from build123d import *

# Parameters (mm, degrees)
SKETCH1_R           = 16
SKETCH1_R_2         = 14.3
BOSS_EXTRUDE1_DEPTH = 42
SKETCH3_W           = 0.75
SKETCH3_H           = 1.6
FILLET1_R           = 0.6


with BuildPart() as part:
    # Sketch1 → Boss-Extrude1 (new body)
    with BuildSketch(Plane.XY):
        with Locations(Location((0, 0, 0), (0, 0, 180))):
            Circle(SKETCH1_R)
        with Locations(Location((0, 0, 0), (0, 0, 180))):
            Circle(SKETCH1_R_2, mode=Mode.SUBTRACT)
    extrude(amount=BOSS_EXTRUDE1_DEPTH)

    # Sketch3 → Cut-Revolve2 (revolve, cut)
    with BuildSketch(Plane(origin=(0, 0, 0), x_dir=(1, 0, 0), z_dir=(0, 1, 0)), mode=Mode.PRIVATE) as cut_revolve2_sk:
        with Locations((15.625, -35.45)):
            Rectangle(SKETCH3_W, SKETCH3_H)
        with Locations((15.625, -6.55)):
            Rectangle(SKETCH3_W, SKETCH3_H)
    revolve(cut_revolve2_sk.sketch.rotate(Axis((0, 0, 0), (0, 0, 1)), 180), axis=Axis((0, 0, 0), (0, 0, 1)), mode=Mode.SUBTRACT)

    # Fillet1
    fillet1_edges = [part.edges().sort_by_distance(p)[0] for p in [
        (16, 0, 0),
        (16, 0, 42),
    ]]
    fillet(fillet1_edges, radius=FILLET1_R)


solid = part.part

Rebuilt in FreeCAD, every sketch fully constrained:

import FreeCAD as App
import Part
import Sketcher


def edges_at(feature, points):
    """Names of the edges that pass closest to the given points."""
    edges = feature.Shape.Edges
    near = lambda p: min(range(len(edges)), key=lambda i: edges[i].distToShape(Part.Vertex(*p))[0])
    return sorted({f"Edge{near(p) + 1}" for p in points})

doc = App.newDocument("Part")
body = doc.addObject("PartDesign::Body", "Body")

sketch1 = body.newObject("Sketcher::SketchObject", "Sketch")
sketch1.AttachmentSupport = (doc.getObject("XY_Plane"), [""])
sketch1.MapMode = "FlatFace"
sketch1.addGeometry([
    Part.Circle(App.Vector(0, 0, 0), App.Vector(0, 0, 1), 16),
    Part.Circle(App.Vector(0, 0, 0), App.Vector(0, 0, 1), 14),
], False)
sketch1.addConstraint([
    Sketcher.Constraint("Coincident", 0, 3, -1, 1),
    Sketcher.Constraint("Coincident", 1, 3, -1, 1),
    Sketcher.Constraint("Diameter", 0, 32.0),
    Sketcher.Constraint("Diameter", 1, 28.6),
])
pad1 = body.newObject("PartDesign::Pad", "Pad")
pad1.Profile = sketch1
pad1.Length = 42

sketch2 = body.newObject("Sketcher::SketchObject", "Sketch001")
sketch2.AttachmentSupport = (doc.getObject("XZ_Plane"), [""])
sketch2.MapMode = "FlatFace"
sketch2.addGeometry([
    Part.LineSegment(App.Vector(15.2, 34.6, 0), App.Vector(15.2, 36.2, 0)),
    Part.LineSegment(App.Vector(15.2, 36.2, 0), App.Vector(16, 36.2, 0)),
    Part.LineSegment(App.Vector(16, 36.2, 0), App.Vector(16, 34.6, 0)),
    Part.LineSegment(App.Vector(16, 34.6, 0), App.Vector(15.2, 34.6, 0)),
    Part.LineSegment(App.Vector(15.2, 5.8, 0), App.Vector(15.2, 7.3, 0)),
    Part.LineSegment(App.Vector(15.2, 7.3, 0), App.Vector(16, 7.3, 0)),
    Part.LineSegment(App.Vector(16, 7.3, 0), App.Vector(16, 5.8, 0)),
    Part.LineSegment(App.Vector(16, 5.8, 0), App.Vector(15.2, 5.8, 0)),
], False)
sketch2.addConstraint([
    Sketcher.Constraint("Coincident", 0, 2, 1, 1),
    Sketcher.Constraint("Coincident", 1, 2, 2, 1),
    Sketcher.Constraint("Coincident", 2, 2, 3, 1),
    Sketcher.Constraint("Coincident", 3, 2, 0, 1),
    Sketcher.Constraint("Coincident", 4, 2, 5, 1),
    Sketcher.Constraint("Coincident", 5, 2, 6, 1),
    Sketcher.Constraint("Coincident", 6, 2, 7, 1),
    Sketcher.Constraint("Coincident", 7, 2, 4, 1),
    Sketcher.Constraint("Vertical", 0),
    Sketcher.Constraint("Horizontal", 1),
    Sketcher.Constraint("Vertical", 2),
    Sketcher.Constraint("Horizontal", 3),
    Sketcher.Constraint("Vertical", 4),
    Sketcher.Constraint("Horizontal", 5),
    Sketcher.Constraint("Vertical", 6),
    Sketcher.Constraint("Horizontal", 7),
    Sketcher.Constraint("Vertical", 3, 2, 4, 2),
    Sketcher.Constraint("Vertical", 2, 2, 5, 2),
    Sketcher.Constraint("Equal", 2, 4),
    Sketcher.Constraint("DistanceY", 0, 1, 0, 2, 1.6),
    Sketcher.Constraint("DistanceX", -1, 1, 1, 2, 16.0),
    Sketcher.Constraint("DistanceX", 1, 1, 1, 2, 0.75),
    Sketcher.Constraint("DistanceY", 4, 2, 3, 2, 27.3),
    Sketcher.Constraint("DistanceY", -1, 1, 0, 2, 36.25),
])
groove = body.newObject("PartDesign::Groove", "Groove")
groove.Profile = sketch2
groove.ReferenceAxis = (sketch2, ["V_Axis"])
groove.Angle = 360
doc.recompute()

fillet = body.newObject("PartDesign::Fillet", "Fillet")
fillet.Base = (groove, edges_at(groove, [(16, 0, 0), (16, 0, 42)]))
fillet.Radius = 0.6

doc.recompute()
